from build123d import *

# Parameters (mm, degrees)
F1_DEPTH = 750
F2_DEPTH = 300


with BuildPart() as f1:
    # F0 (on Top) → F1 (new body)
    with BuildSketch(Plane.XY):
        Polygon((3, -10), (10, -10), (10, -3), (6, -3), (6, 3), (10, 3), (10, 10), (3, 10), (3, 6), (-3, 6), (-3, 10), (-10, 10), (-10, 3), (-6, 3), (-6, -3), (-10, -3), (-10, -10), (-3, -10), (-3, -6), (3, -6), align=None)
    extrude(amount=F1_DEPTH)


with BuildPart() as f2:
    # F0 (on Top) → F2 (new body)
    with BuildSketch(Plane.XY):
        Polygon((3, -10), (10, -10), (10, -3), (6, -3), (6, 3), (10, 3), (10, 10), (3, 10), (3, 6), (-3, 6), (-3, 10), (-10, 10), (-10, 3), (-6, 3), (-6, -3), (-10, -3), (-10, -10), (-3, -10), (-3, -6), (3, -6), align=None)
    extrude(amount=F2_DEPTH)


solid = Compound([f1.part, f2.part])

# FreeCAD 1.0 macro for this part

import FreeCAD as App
import Part
import Sketcher
from FreeCAD import Vector


def add_polygon(sketch, points):
    """Adds a closed chain of lines whose ends are joined by coincident constraints."""
    first, n = sketch.GeometryCount, len(points)
    for a, b in zip(points, points[1:] + points[:1]):
        sketch.addGeometry(Part.LineSegment(App.Vector(*a, 0), App.Vector(*b, 0)), False)
    for i in range(n):
        sketch.addConstraint(Sketcher.Constraint("Coincident", first + i, 2, first + (i + 1) % n, 1))

doc = App.newDocument("Part")
body = doc.addObject("PartDesign::Body", "Body")

# Sketch on XY plane
sketch1 = body.newObject("Sketcher::SketchObject", "Sketch")
sketch1.AttachmentSupport = (doc.getObject("XY_Plane"), [""])
sketch1.MapMode = "FlatFace"
add_polygon(sketch1, [(3, -10), (10, -10), (10, -3), (6, -3), (6, 3), (10, 3), (10, 10), (3, 10), (3, 6), (-3, 6), (-3, 10), (-10, 10), (-10, 3), (-6, 3), (-6, -3), (-10, -3), (-10, -10), (-3, -10), (-3, -6), (3, -6)])  # lines 0-19
sketch1.addConstraint(Sketcher.Constraint("Horizontal", 0))
sketch1.addConstraint(Sketcher.Constraint("Vertical", 1))
sketch1.addConstraint(Sketcher.Constraint("Horizontal", 2))
sketch1.addConstraint(Sketcher.Constraint("Vertical", 3))
sketch1.addConstraint(Sketcher.Constraint("Horizontal", 4))
sketch1.addConstraint(Sketcher.Constraint("Vertical", 5))
sketch1.addConstraint(Sketcher.Constraint("Horizontal", 6))
sketch1.addConstraint(Sketcher.Constraint("Vertical", 7))
sketch1.addConstraint(Sketcher.Constraint("Horizontal", 8))
sketch1.addConstraint(Sketcher.Constraint("Vertical", 9))
sketch1.addConstraint(Sketcher.Constraint("Horizontal", 10))
sketch1.addConstraint(Sketcher.Constraint("Vertical", 11))
sketch1.addConstraint(Sketcher.Constraint("Horizontal", 12))
sketch1.addConstraint(Sketcher.Constraint("Vertical", 13))
sketch1.addConstraint(Sketcher.Constraint("Horizontal", 14))
sketch1.addConstraint(Sketcher.Constraint("Vertical", 15))
sketch1.addConstraint(Sketcher.Constraint("Horizontal", 16))
sketch1.addConstraint(Sketcher.Constraint("Vertical", 17))
sketch1.addConstraint(Sketcher.Constraint("Horizontal", 18))
sketch1.addConstraint(Sketcher.Constraint("Vertical", 19))
sketch1.addConstraint(Sketcher.Constraint("Symmetric", 0, 2, 10, 2, -1, 1))
sketch1.addConstraint(Sketcher.Constraint("Symmetric", 2, 2, 12, 2, -1, 1))
sketch1.addConstraint(Sketcher.Constraint("Symmetric", 4, 2, 14, 2, -1, 1))
sketch1.addConstraint(Sketcher.Constraint("Symmetric", 6, 2, 16, 2, -1, 1))
sketch1.addConstraint(Sketcher.Constraint("Symmetric", 8, 2, 18, 2, -1, 1))
sketch1.addConstraint(Sketcher.Constraint("Symmetric", 6, 2, 9, 2, -2))
sketch1.addConstraint(Sketcher.Constraint("Symmetric", 4, 2, 11, 2, -2))
sketch1.addConstraint(Sketcher.Constraint("Equal", 16, 1))
sketch1.addConstraint(Sketcher.Constraint("Equal", 18, 3))
sketch1.addConstraint(Sketcher.Constraint("Equal", 14, 7))
sketch1.addConstraint(Sketcher.Constraint("DistanceX", 0, 1, 0, 2, 7.0))
sketch1.addConstraint(Sketcher.Constraint("DistanceX", 2, 2, 2, 1, 4.0))
sketch1.addConstraint(Sketcher.Constraint("DistanceX", 8, 2, 8, 1, 6.0))
pad1 = body.newObject("PartDesign::Pad", "Pad")
pad1.Profile = sketch1
pad1.Length = 750
body2 = doc.addObject("PartDesign::Body", "Body001")

# Sketch on XY plane
sketch2 = body2.newObject("Sketcher::SketchObject", "Sketch001")
sketch2.AttachmentSupport = (doc.getObject("XY_Plane001"), [""])
sketch2.MapMode = "FlatFace"
add_polygon(sketch2, [(3, -10), (10, -10), (10, -3), (6, -3), (6, 3), (10, 3), (10, 10), (3, 10), (3, 6), (-3, 6), (-3, 10), (-10, 10), (-10, 3), (-6, 3), (-6, -3), (-10, -3), (-10, -10), (-3, -10), (-3, -6), (3, -6)])  # lines 0-19
sketch2.addConstraint(Sketcher.Constraint("Horizontal", 0))
sketch2.addConstraint(Sketcher.Constraint("Vertical", 1))
sketch2.addConstraint(Sketcher.Constraint("Horizontal", 2))
sketch2.addConstraint(Sketcher.Constraint("Vertical", 3))
sketch2.addConstraint(Sketcher.Constraint("Horizontal", 4))
sketch2.addConstraint(Sketcher.Constraint("Vertical", 5))
sketch2.addConstraint(Sketcher.Constraint("Horizontal", 6))
sketch2.addConstraint(Sketcher.Constraint("Vertical", 7))
sketch2.addConstraint(Sketcher.Constraint("Horizontal", 8))
sketch2.addConstraint(Sketcher.Constraint("Vertical", 9))
sketch2.addConstraint(Sketcher.Constraint("Horizontal", 10))
sketch2.addConstraint(Sketcher.Constraint("Vertical", 11))
sketch2.addConstraint(Sketcher.Constraint("Horizontal", 12))
sketch2.addConstraint(Sketcher.Constraint("Vertical", 13))
sketch2.addConstraint(Sketcher.Constraint("Horizontal", 14))
sketch2.addConstraint(Sketcher.Constraint("Vertical", 15))
sketch2.addConstraint(Sketcher.Constraint("Horizontal", 16))
sketch2.addConstraint(Sketcher.Constraint("Vertical", 17))
sketch2.addConstraint(Sketcher.Constraint("Horizontal", 18))
sketch2.addConstraint(Sketcher.Constraint("Vertical", 19))
sketch2.addConstraint(Sketcher.Constraint("Symmetric", 0, 2, 10, 2, -1, 1))
sketch2.addConstraint(Sketcher.Constraint("Symmetric", 2, 2, 12, 2, -1, 1))
sketch2.addConstraint(Sketcher.Constraint("Symmetric", 4, 2, 14, 2, -1, 1))
sketch2.addConstraint(Sketcher.Constraint("Symmetric", 6, 2, 16, 2, -1, 1))
sketch2.addConstraint(Sketcher.Constraint("Symmetric", 8, 2, 18, 2, -1, 1))
sketch2.addConstraint(Sketcher.Constraint("Symmetric", 6, 2, 9, 2, -2))
sketch2.addConstraint(Sketcher.Constraint("Symmetric", 4, 2, 11, 2, -2))
sketch2.addConstraint(Sketcher.Constraint("Equal", 16, 1))
sketch2.addConstraint(Sketcher.Constraint("Equal", 18, 3))
sketch2.addConstraint(Sketcher.Constraint("Equal", 14, 7))
sketch2.addConstraint(Sketcher.Constraint("DistanceX", 0, 1, 0, 2, 7.0))
sketch2.addConstraint(Sketcher.Constraint("DistanceX", 2, 2, 2, 1, 4.0))
sketch2.addConstraint(Sketcher.Constraint("DistanceX", 8, 2, 8, 1, 6.0))
pad2 = body2.newObject("PartDesign::Pad", "Pad001")
pad2.Profile = sketch2
pad2.Length = 300

doc.recompute()
